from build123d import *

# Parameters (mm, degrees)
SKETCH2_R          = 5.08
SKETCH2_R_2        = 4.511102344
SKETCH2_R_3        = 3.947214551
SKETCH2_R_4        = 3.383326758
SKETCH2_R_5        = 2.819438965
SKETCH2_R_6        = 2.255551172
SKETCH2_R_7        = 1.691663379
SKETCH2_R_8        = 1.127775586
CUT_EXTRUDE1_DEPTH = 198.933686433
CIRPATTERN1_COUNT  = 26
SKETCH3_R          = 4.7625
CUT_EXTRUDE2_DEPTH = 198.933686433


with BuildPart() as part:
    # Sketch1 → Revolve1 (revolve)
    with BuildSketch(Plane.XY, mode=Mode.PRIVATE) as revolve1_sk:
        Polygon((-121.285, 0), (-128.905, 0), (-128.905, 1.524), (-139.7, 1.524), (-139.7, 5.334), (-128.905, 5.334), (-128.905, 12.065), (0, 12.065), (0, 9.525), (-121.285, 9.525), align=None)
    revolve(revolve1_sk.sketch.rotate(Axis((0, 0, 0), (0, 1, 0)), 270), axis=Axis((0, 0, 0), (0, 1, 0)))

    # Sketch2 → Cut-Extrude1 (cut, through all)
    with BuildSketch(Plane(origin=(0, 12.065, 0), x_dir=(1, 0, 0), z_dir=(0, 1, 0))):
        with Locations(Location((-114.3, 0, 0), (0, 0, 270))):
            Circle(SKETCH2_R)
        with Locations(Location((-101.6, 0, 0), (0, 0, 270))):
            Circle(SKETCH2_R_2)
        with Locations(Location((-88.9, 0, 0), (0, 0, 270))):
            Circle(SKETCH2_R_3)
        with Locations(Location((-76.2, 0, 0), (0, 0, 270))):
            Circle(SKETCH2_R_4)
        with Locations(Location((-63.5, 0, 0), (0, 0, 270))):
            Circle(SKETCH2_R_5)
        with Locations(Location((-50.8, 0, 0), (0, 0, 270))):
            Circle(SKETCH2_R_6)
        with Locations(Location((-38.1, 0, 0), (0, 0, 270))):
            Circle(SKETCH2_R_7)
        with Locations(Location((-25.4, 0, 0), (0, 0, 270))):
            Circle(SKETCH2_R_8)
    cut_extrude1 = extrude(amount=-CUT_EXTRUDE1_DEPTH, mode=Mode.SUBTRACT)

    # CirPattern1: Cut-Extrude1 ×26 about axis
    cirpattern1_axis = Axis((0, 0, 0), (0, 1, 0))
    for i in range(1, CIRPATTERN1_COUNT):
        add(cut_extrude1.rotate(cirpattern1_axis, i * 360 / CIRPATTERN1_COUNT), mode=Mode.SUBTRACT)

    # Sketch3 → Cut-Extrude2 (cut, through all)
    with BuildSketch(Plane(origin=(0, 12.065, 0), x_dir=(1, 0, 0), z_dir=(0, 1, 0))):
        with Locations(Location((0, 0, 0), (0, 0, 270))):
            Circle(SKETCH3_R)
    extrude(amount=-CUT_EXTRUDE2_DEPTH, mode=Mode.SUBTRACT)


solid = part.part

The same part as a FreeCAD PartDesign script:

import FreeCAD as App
import Part
import Sketcher
Q = App.Units.Quantity

doc = App.newDocument("Part")
body = doc.addObject("PartDesign::Body", "Body")

sketch1 = body.newObject("Sketcher::SketchObject", "Sketch")
sketch1.AttachmentSupport = (doc.getObject("XY_Plane"), [""])
sketch1.MapMode = "FlatFace"
sketch1.addGeometry([
    Part.LineSegment(App.Vector(-128.905, 0, 0), App.Vector(-121.285, 0, 0)),
    Part.LineSegment(App.Vector(-121.285, 0, 0), App.Vector(-121.285, 9.525, 0)),
    Part.LineSegment(App.Vector(-121.285, 9.525, 0), App.Vector(0, 9.525, 0)),
    Part.LineSegment(App.Vector(0, 9.525, 0), App.Vector(0, 12.065, 0)),
    Part.LineSegment(App.Vector(0, 12.065, 0), App.Vector(-128.905, 12.065, 0)),
    Part.LineSegment(App.Vector(-128.905, 12.065, 0), App.Vector(-128.905, 5.334, 0)),
    Part.LineSegment(App.Vector(-128.905, 5.334, 0), App.Vector(-139.7, 5.334, 0)),
    Part.LineSegment(App.Vector(-139.7, 5.334, 0), App.Vector(-139.7, 1.524, 0)),
    Part.LineSegment(App.Vector(-139.7, 1.524, 0), App.Vector(-128.905, 1.524, 0)),
    Part.LineSegment(App.Vector(-128.905, 1.524, 0), App.Vector(-128.905, 0, 0)),
], False)
sketch1.addConstraint([
    Sketcher.Constraint("Coincident", 0, 2, 1, 1),
    Sketcher.Constraint("Coincident", 1, 2, 2, 1),
    Sketcher.Constraint("Coincident", 2, 2, 3, 1),
    Sketcher.Constraint("Coincident", 3, 2, 4, 1),
    Sketcher.Constraint("Coincident", 4, 2, 5, 1),
    Sketcher.Constraint("Coincident", 5, 2, 6, 1),
    Sketcher.Constraint("Coincident", 6, 2, 7, 1),
    Sketcher.Constraint("Coincident", 7, 2, 8, 1),
    Sketcher.Constraint("Coincident", 8, 2, 9, 1),
    Sketcher.Constraint("Coincident", 9, 2, 0, 1),
    Sketcher.Constraint("Horizontal", 0),
    Sketcher.Constraint("Vertical", 1),
    Sketcher.Constraint("Horizontal", 2),
    Sketcher.Constraint("Vertical", 3),
    Sketcher.Constraint("Horizontal", 4),
    Sketcher.Constraint("Vertical", 5),
    Sketcher.Constraint("Horizontal", 6),
    Sketcher.Constraint("Vertical", 7),
    Sketcher.Constraint("Horizontal", 8),
    Sketcher.Constraint("Vertical", 9),
    Sketcher.Constraint("PointOnObject", 0, 2, -1),
    Sketcher.Constraint("PointOnObject", 2, 2, -2),
    Sketcher.Constraint("Vertical", 5, 2, 8, 2),
    Sketcher.Constraint("DistanceX", 0, 1, 0, 2, Q("0.3 in")),
    Sketcher.Constraint("DistanceY", 3, 1, 3, 2, Q("0.1 in")),
    Sketcher.Constraint("DistanceY", 7, 2, 7, 1, Q("0.15 in")),
    Sketcher.Constraint("DistanceY", 9, 2, 9, 1, Q("0.06 in")),
    Sketcher.Constraint("DistanceX", 6, 2, -1, 1, Q("5.5 in")),
    Sketcher.Constraint("DistanceX", 2, 1, 2, 2, Q("4.775 in")),
    Sketcher.Constraint("DistanceY", 1, 1, 1, 2, Q("0.375 in")),
])
revolution = body.newObject("PartDesign::Revolution", "Revolution")
revolution.Profile = sketch1
revolution.ReferenceAxis = (sketch1, ["V_Axis"])
revolution.Angle = 360

sketch2 = body.newObject("Sketcher::SketchObject", "Sketch001")
sketch2.AttachmentSupport = (doc.getObject("XZ_Plane"), [""])
sketch2.MapMode = "FlatFace"
sketch2.AttachmentOffset = App.Placement(App.Vector(0, 0, -0.475 * 25.4), App.Rotation())
sketch2.addGeometry([
    Part.Circle(App.Vector(-114.3, 0, 0), App.Vector(0, 0, 1), 5.08),
    Part.Circle(App.Vector(-101.6, 0, 0), App.Vector(0, 0, 1), 4.511102),
    Part.Circle(App.Vector(-88.9, 0, 0), App.Vector(0, 0, 1), 3.947215),
    Part.Circle(App.Vector(-76.2, 0, 0), App.Vector(0, 0, 1), 3.383327),
    Part.Circle(App.Vector(-63.5, 0, 0), App.Vector(0, 0, 1), 2.819439),
    Part.Circle(App.Vector(-50.8, 0, 0), App.Vector(0, 0, 1), 2.255551),
    Part.Circle(App.Vector(-38.1, 0, 0), App.Vector(0, 0, 1), 1.691663),
    Part.Circle(App.Vector(-25.4, 0, 0), App.Vector(0, 0, 1), 1.127776),
], False)
sketch2.addConstraint([
    Sketcher.Constraint("PointOnObject", 0, 3, -1),
    Sketcher.Constraint("PointOnObject", 1, 3, -1),
    Sketcher.Constraint("PointOnObject", 2, 3, -1),
    Sketcher.Constraint("PointOnObject", 3, 3, -1),
    Sketcher.Constraint("PointOnObject", 4, 3, -1),
    Sketcher.Constraint("PointOnObject", 5, 3, -1),
    Sketcher.Constraint("PointOnObject", 6, 3, -1),
    Sketcher.Constraint("PointOnObject", 7, 3, -1),
    Sketcher.Constraint("Diameter", 0, Q("0.4 in")),
    Sketcher.Constraint("DistanceX", 1, 3, -1, 1, Q("4 in")),
    Sketcher.Constraint("DistanceX", 3, 3, -1, 1, Q("3 in")),
    Sketcher.Constraint("DistanceX", 5, 3, -1, 1, Q("2 in")),
    Sketcher.Constraint("DistanceX", 7, 3, -1, 1, Q("1 in")),
    Sketcher.Constraint("DistanceX", 0, 3, 2, 3, Q("1 in")),
    Sketcher.Constraint("DistanceX", 2, 3, 4, 3, Q("1 in")),
    Sketcher.Constraint("DistanceX", 4, 3, 6, 3, Q("1 in")),
    Sketcher.Constraint("DistanceX", 0, 3, -1, 1, Q("4.5 in")),
    Sketcher.Constraint("Diameter", 2, 7.894429),
    Sketcher.Constraint("Diameter", 7, 2.255551),
    Sketcher.Constraint("Diameter", 1, 9.022205),
    Sketcher.Constraint("Diameter", 3, 6.766654),
    Sketcher.Constraint("Diameter", 4, 5.638878),
    Sketcher.Constraint("Diameter", 5, 4.511102),
    Sketcher.Constraint("Diameter", 6, 3.383327),
])
pocket1 = body.newObject("PartDesign::Pocket", "Pocket")
pocket1.Profile = sketch2
pocket1.Type = "ThroughAll"
pocket1.Reversed = True
doc.recompute()

polarpattern = body.newObject("PartDesign::PolarPattern", "PolarPattern")
polarpattern.Originals = [pocket1]
polarpattern.Axis = (doc.getObject("Y_Axis"), [""])
polarpattern.Angle = 360
polarpattern.Occurrences = 26
body.Tip = polarpattern

sketch3 = body.newObject("Sketcher::SketchObject", "Sketch002")
sketch3.AttachmentSupport = (doc.getObject("XZ_Plane"), [""])
sketch3.MapMode = "FlatFace"
sketch3.AttachmentOffset = App.Placement(App.Vector(0, 0, -0.475 * 25.4), App.Rotation())
sketch3.addGeometry(Part.Circle(App.Vector(0, 0, 0), App.Vector(0, 0, 1), 4.7625), False)
sketch3.addConstraint([
    Sketcher.Constraint("Coincident", 0, 3, -1, 1),
    Sketcher.Constraint("Diameter", 0, Q("0.375 in")),
])
pocket2 = body.newObject("PartDesign::Pocket", "Pocket001")
pocket2.Profile = sketch3
pocket2.Type = "ThroughAll"
pocket2.Reversed = True

doc.recompute()
